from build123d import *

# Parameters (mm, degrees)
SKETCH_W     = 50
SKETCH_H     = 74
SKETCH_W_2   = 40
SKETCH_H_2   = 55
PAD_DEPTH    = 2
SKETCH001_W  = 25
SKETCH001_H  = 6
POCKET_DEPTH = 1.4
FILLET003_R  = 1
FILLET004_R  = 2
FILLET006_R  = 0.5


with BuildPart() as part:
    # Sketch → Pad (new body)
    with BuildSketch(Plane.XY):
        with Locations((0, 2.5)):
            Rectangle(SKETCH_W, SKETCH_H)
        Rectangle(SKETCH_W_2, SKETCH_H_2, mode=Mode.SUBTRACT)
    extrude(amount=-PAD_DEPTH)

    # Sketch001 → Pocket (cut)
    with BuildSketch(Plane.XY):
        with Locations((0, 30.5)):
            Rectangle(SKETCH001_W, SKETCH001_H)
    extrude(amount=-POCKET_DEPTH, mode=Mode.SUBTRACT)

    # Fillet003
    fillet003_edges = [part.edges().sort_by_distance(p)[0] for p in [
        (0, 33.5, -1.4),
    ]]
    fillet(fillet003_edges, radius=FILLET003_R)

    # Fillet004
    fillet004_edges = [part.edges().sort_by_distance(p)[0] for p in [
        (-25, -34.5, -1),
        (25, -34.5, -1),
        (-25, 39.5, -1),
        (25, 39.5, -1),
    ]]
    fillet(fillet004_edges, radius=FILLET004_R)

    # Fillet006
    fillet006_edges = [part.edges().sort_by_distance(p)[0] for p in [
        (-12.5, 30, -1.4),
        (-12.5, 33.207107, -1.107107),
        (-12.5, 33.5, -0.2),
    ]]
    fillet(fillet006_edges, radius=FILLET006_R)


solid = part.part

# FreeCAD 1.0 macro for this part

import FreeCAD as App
import Part
import Sketcher


def edges_at(feature, points):
    """Names of the edges that pass closest to the given points."""
    edges = feature.Shape.Edges
    near = lambda p: min(range(len(edges)), key=lambda i: edges[i].distToShape(Part.Vertex(*p))[0])
    return sorted({f"Edge{near(p) + 1}" for p in points})

doc = App.newDocument("Part")
body = doc.addObject("PartDesign::Body", "Body")

sketch1 = body.newObject("Sketcher::SketchObject", "Sketch")
sketch1.AttachmentSupport = (doc.getObject("XY_Plane"), [""])
sketch1.MapMode = "FlatFace"
sketch1.addGeometry(Part.LineSegment(App.Vector(-25, 40, 0), App.Vector(-25, -34, 0)), False)
sketch1.addGeometry(Part.LineSegment(App.Vector(-25, -34, 0), App.Vector(25, -34, 0)), False)
sketch1.addGeometry(Part.LineSegment(App.Vector(25, -34, 0), App.Vector(25, 40, 0)), False)
sketch1.addGeometry(Part.LineSegment(App.Vector(25, 40, 0), App.Vector(-25, 40, 0)), False)
sketch1.addGeometry(Part.LineSegment(App.Vector(20, -28, 0), App.Vector(-20, -28, 0)), False)
sketch1.addGeometry(Part.LineSegment(App.Vector(-20, -28, 0), App.Vector(-20, 28, 0)), False)
sketch1.addGeometry(Part.LineSegment(App.Vector(-20, 28, 0), App.Vector(20, 28, 0)), False)
sketch1.addGeometry(Part.LineSegment(App.Vector(20, 28, 0), App.Vector(20, -28, 0)), False)
sketch1.addConstraint(Sketcher.Constraint("Coincident", 0, 2, 1, 1))
sketch1.addConstraint(Sketcher.Constraint("Coincident", 1, 2, 2, 1))
sketch1.addConstraint(Sketcher.Constraint("Coincident", 2, 2, 3, 1))
sketch1.addConstraint(Sketcher.Constraint("Coincident", 3, 2, 0, 1))
sketch1.addConstraint(Sketcher.Constraint("Coincident", 4, 2, 5, 1))
sketch1.addConstraint(Sketcher.Constraint("Coincident", 5, 2, 6, 1))
sketch1.addConstraint(Sketcher.Constraint("Coincident", 6, 2, 7, 1))
sketch1.addConstraint(Sketcher.Constraint("Coincident", 7, 2, 4, 1))
sketch1.addConstraint(Sketcher.Constraint("Vertical", 0))
sketch1.addConstraint(Sketcher.Constraint("Horizontal", 1))
sketch1.addConstraint(Sketcher.Constraint("Vertical", 2))
sketch1.addConstraint(Sketcher.Constraint("Horizontal", 3))
sketch1.addConstraint(Sketcher.Constraint("Horizontal", 4))
sketch1.addConstraint(Sketcher.Constraint("Vertical", 5))
sketch1.addConstraint(Sketcher.Constraint("Horizontal", 6))
sketch1.addConstraint(Sketcher.Constraint("Vertical", 7))
sketch1.addConstraint(Sketcher.Constraint("Symmetric", 4, 2, 6, 2, -1, 1))
sketch1.addConstraint(Sketcher.Constraint("DistanceX", 1, 1, 1, 2, 50.0))
sketch1.addConstraint(Sketcher.Constraint("DistanceX", 4, 2, 4, 1, 40.0))
sketch1.addConstraint(Sketcher.Constraint("DistanceY", 0, 2, 0, 1, 74.0))
sketch1.addConstraint(Sketcher.Constraint("DistanceY", 5, 1, 5, 2, 55.0))
sketch1.addConstraint(Sketcher.Constraint("DistanceX", 0, 2, -1, 1, 25.0))
sketch1.addConstraint(Sketcher.Constraint("DistanceY", 0, 2, 4, 2, 7.0))
pad1 = body.newObject("PartDesign::Pad", "Pad")
pad1.Profile = sketch1
pad1.Length = 2
pad1.Reversed = True

sketch2 = body.newObject("Sketcher::SketchObject", "Sketch001")
sketch2.AttachmentSupport = (doc.getObject("XY_Plane"), [""])
sketch2.MapMode = "FlatFace"
sketch2.addGeometry(Part.LineSegment(App.Vector(-12, 34, 0), App.Vector(-12, 28, 0)), False)
sketch2.addGeometry(Part.LineSegment(App.Vector(-12, 28, 0), App.Vector(12, 28, 0)), False)
sketch2.addGeometry(Part.LineSegment(App.Vector(12, 28, 0), App.Vector(12, 34, 0)), False)
sketch2.addGeometry(Part.LineSegment(App.Vector(12, 34, 0), App.Vector(-12, 34, 0)), False)
sketch2.addConstraint(Sketcher.Constraint("Coincident", 0, 2, 1, 1))
sketch2.addConstraint(Sketcher.Constraint("Coincident", 1, 2, 2, 1))
sketch2.addConstraint(Sketcher.Constraint("Coincident", 2, 2, 3, 1))
sketch2.addConstraint(Sketcher.Constraint("Coincident", 3, 2, 0, 1))
sketch2.addConstraint(Sketcher.Constraint("Vertical", 0))
sketch2.addConstraint(Sketcher.Constraint("Horizontal", 1))
sketch2.addConstraint(Sketcher.Constraint("Vertical", 2))
sketch2.addConstraint(Sketcher.Constraint("Horizontal", 3))
sketch2.addConstraint(Sketcher.Constraint("DistanceX", 1, 1, 1, 2, 25.0))
sketch2.addConstraint(Sketcher.Constraint("DistanceY", 0, 2, 0, 1, 6.0))
sketch2.addConstraint(Sketcher.Constraint("DistanceX", 0, 2, -1, 1, 12.5))
sketch2.addConstraint(Sketcher.Constraint("DistanceY", -1, 1, 0, 2, 27.5))
pocket1 = body.newObject("PartDesign::Pocket", "Pocket")
pocket1.Profile = sketch2
pocket1.Length = 1.4
doc.recompute()

fillet = body.newObject("PartDesign::Fillet", "Fillet")
fillet.Base = (pocket1, edges_at(pocket1, [(0, 33.5, -1.4)]))
fillet.Radius = 1
doc.recompute()

fillet2 = body.newObject("PartDesign::Fillet", "Fillet001")
fillet2.Base = (fillet, edges_at(fillet, [
    (-25, -34.5, -1),
    (25, -34.5, -1),
    (-25, 39.5, -1),
    (25, 39.5, -1),
]))
fillet2.Radius = 2
doc.recompute()

fillet3 = body.newObject("PartDesign::Fillet", "Fillet002")
fillet3.Base = (fillet2, edges_at(fillet2, [(-12.5, 30, -1.4), (-12.5, 33.207, -1.107), (-12.5, 33.5, -0.2)]))
fillet3.Radius = 0.5

doc.recompute()
